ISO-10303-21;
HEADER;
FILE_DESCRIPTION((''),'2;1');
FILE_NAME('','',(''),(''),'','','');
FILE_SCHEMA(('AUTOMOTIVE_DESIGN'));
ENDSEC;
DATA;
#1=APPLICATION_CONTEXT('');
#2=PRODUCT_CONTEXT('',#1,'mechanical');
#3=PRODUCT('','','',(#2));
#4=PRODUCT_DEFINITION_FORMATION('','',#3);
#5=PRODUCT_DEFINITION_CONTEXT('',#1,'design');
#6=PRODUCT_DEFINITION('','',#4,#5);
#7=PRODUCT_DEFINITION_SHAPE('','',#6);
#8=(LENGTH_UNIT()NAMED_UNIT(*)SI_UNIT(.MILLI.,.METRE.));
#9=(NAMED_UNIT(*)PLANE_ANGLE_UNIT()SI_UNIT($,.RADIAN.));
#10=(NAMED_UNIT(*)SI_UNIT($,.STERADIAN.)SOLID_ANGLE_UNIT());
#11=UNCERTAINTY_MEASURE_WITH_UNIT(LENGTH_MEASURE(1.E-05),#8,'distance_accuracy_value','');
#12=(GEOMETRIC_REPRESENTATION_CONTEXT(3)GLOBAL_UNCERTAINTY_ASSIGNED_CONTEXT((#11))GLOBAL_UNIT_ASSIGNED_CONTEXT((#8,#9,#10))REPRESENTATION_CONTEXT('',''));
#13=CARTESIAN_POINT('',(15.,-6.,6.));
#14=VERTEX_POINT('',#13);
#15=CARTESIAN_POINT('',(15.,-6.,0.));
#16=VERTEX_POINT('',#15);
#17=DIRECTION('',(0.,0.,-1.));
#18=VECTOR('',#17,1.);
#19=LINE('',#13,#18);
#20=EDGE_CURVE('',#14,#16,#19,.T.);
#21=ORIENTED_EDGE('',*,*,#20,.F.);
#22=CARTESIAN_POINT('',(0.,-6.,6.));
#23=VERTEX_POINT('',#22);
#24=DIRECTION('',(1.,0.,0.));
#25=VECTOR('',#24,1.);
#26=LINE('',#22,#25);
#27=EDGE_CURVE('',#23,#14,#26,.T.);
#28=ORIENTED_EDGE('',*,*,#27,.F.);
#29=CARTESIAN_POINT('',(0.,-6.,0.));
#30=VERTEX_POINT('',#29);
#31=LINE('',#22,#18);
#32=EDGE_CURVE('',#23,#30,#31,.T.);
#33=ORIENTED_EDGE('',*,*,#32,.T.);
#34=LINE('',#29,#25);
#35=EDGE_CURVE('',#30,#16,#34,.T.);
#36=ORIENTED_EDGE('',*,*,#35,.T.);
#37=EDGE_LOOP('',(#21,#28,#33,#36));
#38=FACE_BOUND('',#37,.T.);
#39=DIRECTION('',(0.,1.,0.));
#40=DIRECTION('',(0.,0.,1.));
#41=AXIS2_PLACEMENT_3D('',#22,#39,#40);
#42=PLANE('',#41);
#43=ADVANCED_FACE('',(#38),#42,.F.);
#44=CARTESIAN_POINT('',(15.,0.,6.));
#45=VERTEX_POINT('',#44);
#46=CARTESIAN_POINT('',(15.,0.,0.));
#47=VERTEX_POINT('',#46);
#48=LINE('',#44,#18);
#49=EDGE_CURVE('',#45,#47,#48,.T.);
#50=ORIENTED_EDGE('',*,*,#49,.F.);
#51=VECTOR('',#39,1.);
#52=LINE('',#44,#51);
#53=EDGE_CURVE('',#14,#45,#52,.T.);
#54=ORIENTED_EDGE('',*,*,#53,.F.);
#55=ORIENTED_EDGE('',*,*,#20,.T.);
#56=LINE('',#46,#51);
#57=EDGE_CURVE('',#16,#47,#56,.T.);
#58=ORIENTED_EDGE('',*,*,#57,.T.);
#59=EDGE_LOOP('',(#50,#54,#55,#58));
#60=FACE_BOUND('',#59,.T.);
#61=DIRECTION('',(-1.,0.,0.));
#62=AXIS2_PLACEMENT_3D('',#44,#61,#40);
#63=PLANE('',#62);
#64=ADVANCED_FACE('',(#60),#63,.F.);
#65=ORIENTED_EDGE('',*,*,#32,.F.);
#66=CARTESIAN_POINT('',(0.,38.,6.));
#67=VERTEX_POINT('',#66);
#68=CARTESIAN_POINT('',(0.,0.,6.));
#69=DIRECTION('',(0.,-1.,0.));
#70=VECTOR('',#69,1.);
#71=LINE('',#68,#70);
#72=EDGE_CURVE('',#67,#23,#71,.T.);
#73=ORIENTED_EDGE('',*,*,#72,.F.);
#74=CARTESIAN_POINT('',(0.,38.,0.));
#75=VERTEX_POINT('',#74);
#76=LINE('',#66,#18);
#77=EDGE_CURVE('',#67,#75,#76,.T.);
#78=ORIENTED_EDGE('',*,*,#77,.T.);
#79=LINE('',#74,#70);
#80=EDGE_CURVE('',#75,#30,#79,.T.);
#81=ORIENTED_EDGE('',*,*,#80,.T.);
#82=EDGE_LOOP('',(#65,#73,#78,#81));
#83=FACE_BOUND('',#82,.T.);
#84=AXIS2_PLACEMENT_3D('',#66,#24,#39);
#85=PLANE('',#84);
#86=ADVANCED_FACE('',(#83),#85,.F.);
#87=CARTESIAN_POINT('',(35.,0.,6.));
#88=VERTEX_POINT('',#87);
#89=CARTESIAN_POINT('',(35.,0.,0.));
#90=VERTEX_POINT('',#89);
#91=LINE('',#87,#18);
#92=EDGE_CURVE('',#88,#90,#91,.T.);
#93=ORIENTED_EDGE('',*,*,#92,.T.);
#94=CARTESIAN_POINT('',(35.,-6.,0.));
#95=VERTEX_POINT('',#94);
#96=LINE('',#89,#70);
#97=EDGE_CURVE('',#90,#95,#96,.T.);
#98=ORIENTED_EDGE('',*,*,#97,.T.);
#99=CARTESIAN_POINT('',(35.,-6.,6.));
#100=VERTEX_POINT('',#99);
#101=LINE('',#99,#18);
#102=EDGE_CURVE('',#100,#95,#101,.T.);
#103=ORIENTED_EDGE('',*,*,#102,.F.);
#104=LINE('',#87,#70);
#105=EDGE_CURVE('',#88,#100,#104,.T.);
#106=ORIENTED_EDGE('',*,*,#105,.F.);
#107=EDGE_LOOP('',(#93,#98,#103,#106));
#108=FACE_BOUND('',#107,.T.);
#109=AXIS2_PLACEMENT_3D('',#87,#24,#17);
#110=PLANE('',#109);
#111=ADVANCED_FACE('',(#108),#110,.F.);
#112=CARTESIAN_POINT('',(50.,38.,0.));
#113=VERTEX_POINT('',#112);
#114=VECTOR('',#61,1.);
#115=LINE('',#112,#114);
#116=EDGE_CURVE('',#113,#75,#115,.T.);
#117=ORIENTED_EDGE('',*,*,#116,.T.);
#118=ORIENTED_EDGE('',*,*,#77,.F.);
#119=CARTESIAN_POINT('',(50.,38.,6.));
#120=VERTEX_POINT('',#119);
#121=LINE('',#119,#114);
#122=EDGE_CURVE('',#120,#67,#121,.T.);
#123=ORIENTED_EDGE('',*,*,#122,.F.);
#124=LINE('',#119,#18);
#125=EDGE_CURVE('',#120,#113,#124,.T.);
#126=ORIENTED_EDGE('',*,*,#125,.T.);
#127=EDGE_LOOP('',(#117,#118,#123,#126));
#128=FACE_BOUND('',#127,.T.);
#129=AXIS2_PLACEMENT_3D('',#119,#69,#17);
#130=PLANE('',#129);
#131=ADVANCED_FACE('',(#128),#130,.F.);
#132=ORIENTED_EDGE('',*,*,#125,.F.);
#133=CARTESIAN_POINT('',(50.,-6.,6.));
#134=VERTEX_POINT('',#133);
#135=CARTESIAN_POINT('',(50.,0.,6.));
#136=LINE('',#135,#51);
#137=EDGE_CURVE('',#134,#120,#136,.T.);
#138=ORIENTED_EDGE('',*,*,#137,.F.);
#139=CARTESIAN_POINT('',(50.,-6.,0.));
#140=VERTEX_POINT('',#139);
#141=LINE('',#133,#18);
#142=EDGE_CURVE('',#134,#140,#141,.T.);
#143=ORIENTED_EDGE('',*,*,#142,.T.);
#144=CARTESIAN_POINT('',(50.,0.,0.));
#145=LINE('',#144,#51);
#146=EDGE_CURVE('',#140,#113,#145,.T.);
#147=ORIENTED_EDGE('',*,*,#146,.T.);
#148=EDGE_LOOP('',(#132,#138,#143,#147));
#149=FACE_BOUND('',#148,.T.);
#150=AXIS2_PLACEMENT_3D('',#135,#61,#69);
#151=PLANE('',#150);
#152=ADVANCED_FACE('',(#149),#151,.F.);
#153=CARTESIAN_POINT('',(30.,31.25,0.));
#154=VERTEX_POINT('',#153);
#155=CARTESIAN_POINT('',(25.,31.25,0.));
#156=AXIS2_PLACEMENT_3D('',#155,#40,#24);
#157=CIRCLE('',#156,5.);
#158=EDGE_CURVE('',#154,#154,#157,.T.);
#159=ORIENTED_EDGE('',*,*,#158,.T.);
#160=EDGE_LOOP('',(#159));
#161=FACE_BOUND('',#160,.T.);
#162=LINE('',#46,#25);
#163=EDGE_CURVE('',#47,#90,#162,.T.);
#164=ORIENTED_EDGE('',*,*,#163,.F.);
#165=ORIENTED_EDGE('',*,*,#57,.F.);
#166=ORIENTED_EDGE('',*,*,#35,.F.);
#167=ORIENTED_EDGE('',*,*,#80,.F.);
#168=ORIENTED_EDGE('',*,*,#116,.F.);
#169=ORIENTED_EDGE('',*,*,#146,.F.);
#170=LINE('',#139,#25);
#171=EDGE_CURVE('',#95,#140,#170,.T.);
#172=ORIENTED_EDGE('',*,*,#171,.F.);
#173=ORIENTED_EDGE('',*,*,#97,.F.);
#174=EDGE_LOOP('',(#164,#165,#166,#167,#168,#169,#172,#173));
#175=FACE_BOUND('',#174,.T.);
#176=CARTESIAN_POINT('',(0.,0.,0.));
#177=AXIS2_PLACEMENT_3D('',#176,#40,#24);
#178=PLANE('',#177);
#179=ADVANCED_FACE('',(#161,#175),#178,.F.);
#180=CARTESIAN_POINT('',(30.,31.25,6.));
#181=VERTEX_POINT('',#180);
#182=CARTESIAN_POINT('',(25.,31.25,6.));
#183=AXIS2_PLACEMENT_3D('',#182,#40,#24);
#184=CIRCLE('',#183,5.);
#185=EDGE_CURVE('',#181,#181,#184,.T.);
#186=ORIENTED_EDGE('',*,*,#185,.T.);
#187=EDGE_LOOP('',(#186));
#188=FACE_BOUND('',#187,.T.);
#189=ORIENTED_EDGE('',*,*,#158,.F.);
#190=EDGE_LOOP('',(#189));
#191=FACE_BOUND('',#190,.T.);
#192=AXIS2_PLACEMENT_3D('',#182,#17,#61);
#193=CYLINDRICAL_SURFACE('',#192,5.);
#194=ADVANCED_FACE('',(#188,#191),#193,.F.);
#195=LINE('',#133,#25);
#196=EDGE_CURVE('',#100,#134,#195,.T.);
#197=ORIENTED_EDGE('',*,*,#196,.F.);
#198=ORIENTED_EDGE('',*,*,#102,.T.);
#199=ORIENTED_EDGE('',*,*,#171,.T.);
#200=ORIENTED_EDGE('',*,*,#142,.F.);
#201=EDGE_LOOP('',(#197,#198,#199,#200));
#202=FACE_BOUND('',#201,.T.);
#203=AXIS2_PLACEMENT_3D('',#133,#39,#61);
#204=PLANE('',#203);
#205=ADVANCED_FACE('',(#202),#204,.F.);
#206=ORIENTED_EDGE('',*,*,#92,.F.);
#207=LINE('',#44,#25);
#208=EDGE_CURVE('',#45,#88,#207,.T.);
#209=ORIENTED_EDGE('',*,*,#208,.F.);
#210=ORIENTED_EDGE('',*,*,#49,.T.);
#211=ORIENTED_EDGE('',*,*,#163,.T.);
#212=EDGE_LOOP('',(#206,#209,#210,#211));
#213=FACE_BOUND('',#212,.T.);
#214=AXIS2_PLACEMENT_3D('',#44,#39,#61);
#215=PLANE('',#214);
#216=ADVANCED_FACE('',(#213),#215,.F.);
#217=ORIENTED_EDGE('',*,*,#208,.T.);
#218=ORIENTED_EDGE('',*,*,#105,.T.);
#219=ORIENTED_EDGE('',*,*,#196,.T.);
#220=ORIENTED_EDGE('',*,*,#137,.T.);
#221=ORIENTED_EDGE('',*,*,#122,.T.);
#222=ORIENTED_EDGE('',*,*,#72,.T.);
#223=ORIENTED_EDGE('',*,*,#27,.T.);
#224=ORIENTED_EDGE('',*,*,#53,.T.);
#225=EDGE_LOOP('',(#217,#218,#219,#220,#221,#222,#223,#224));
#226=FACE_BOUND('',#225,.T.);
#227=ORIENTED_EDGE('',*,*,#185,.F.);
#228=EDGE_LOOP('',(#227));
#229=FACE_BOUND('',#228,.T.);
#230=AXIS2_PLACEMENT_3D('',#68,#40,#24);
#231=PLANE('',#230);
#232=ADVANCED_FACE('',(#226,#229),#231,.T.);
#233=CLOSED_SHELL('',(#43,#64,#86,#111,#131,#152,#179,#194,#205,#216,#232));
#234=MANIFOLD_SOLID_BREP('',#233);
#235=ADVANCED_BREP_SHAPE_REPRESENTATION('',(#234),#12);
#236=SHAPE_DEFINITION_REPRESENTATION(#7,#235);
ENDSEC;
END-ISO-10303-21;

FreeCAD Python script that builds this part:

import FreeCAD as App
import Part
import Sketcher
Q = App.Units.Quantity


def add_polygon(sketch, points):
    """Adds a closed chain of lines whose ends are joined by coincident constraints."""
    first, n = sketch.GeometryCount, len(points)
    for a, b in zip(points, points[1:] + points[:1]):
        sketch.addGeometry(Part.LineSegment(App.Vector(*a, 0), App.Vector(*b, 0)), False)
    for i in range(n):
        sketch.addConstraint(Sketcher.Constraint("Coincident", first + i, 2, first + (i + 1) % n, 1))

doc = App.newDocument("Part")
body = doc.addObject("PartDesign::Body", "Body")

# Sketch on XY plane
sketch1 = body.newObject("Sketcher::SketchObject", "Sketch")
sketch1.AttachmentSupport = (doc.getObject("XY_Plane"), [""])
sketch1.MapMode = "FlatFace"
add_polygon(sketch1, [(15, 0), (35, 0), (35, -6), (50, -6), (50, 38), (0, 38), (0, -6), (15, -6)])  # lines 0-7
sketch1.addGeometry(Part.Circle(App.Vector(25, 31, 0), App.Vector(0, 0, 1), 5), False)  # 8
sketch1.addConstraint([
    Sketcher.Constraint("Horizontal", 0),
    Sketcher.Constraint("Vertical", 1),
    Sketcher.Constraint("Horizontal", 2),
    Sketcher.Constraint("Vertical", 3),
    Sketcher.Constraint("Horizontal", 4),
    Sketcher.Constraint("Vertical", 5),
    Sketcher.Constraint("Horizontal", 6),
    Sketcher.Constraint("Vertical", 7),
    Sketcher.Constraint("PointOnObject", 0, 2, -1),
    Sketcher.Constraint("PointOnObject", 4, 2, -2),
    Sketcher.Constraint("Horizontal", 2, 2, 5, 2),
    Sketcher.Constraint("Equal", 2, 6),
    Sketcher.Constraint("Diameter", 8, Q("10 mm")),
    Sketcher.Constraint("DistanceX", 0, 1, 0, 2, Q("20 mm")),
    Sketcher.Constraint("DistanceX", 2, 1, 2, 2, Q("15 mm")),
    Sketcher.Constraint("DistanceY", 1, 2, 1, 1, Q("6 mm")),
    Sketcher.Constraint("DistanceY", 3, 1, 3, 2, Q("44 mm")),
    Sketcher.Constraint("DistanceX", -1, 1, 8, 3, Q("25 mm")),
    Sketcher.Constraint("DistanceY", -1, 1, 8, 3, Q("31.25 mm")),
])
pad1 = body.newObject("PartDesign::Pad", "Pad")
pad1.Profile = sketch1
pad1.Length = 6

doc.recompute()
